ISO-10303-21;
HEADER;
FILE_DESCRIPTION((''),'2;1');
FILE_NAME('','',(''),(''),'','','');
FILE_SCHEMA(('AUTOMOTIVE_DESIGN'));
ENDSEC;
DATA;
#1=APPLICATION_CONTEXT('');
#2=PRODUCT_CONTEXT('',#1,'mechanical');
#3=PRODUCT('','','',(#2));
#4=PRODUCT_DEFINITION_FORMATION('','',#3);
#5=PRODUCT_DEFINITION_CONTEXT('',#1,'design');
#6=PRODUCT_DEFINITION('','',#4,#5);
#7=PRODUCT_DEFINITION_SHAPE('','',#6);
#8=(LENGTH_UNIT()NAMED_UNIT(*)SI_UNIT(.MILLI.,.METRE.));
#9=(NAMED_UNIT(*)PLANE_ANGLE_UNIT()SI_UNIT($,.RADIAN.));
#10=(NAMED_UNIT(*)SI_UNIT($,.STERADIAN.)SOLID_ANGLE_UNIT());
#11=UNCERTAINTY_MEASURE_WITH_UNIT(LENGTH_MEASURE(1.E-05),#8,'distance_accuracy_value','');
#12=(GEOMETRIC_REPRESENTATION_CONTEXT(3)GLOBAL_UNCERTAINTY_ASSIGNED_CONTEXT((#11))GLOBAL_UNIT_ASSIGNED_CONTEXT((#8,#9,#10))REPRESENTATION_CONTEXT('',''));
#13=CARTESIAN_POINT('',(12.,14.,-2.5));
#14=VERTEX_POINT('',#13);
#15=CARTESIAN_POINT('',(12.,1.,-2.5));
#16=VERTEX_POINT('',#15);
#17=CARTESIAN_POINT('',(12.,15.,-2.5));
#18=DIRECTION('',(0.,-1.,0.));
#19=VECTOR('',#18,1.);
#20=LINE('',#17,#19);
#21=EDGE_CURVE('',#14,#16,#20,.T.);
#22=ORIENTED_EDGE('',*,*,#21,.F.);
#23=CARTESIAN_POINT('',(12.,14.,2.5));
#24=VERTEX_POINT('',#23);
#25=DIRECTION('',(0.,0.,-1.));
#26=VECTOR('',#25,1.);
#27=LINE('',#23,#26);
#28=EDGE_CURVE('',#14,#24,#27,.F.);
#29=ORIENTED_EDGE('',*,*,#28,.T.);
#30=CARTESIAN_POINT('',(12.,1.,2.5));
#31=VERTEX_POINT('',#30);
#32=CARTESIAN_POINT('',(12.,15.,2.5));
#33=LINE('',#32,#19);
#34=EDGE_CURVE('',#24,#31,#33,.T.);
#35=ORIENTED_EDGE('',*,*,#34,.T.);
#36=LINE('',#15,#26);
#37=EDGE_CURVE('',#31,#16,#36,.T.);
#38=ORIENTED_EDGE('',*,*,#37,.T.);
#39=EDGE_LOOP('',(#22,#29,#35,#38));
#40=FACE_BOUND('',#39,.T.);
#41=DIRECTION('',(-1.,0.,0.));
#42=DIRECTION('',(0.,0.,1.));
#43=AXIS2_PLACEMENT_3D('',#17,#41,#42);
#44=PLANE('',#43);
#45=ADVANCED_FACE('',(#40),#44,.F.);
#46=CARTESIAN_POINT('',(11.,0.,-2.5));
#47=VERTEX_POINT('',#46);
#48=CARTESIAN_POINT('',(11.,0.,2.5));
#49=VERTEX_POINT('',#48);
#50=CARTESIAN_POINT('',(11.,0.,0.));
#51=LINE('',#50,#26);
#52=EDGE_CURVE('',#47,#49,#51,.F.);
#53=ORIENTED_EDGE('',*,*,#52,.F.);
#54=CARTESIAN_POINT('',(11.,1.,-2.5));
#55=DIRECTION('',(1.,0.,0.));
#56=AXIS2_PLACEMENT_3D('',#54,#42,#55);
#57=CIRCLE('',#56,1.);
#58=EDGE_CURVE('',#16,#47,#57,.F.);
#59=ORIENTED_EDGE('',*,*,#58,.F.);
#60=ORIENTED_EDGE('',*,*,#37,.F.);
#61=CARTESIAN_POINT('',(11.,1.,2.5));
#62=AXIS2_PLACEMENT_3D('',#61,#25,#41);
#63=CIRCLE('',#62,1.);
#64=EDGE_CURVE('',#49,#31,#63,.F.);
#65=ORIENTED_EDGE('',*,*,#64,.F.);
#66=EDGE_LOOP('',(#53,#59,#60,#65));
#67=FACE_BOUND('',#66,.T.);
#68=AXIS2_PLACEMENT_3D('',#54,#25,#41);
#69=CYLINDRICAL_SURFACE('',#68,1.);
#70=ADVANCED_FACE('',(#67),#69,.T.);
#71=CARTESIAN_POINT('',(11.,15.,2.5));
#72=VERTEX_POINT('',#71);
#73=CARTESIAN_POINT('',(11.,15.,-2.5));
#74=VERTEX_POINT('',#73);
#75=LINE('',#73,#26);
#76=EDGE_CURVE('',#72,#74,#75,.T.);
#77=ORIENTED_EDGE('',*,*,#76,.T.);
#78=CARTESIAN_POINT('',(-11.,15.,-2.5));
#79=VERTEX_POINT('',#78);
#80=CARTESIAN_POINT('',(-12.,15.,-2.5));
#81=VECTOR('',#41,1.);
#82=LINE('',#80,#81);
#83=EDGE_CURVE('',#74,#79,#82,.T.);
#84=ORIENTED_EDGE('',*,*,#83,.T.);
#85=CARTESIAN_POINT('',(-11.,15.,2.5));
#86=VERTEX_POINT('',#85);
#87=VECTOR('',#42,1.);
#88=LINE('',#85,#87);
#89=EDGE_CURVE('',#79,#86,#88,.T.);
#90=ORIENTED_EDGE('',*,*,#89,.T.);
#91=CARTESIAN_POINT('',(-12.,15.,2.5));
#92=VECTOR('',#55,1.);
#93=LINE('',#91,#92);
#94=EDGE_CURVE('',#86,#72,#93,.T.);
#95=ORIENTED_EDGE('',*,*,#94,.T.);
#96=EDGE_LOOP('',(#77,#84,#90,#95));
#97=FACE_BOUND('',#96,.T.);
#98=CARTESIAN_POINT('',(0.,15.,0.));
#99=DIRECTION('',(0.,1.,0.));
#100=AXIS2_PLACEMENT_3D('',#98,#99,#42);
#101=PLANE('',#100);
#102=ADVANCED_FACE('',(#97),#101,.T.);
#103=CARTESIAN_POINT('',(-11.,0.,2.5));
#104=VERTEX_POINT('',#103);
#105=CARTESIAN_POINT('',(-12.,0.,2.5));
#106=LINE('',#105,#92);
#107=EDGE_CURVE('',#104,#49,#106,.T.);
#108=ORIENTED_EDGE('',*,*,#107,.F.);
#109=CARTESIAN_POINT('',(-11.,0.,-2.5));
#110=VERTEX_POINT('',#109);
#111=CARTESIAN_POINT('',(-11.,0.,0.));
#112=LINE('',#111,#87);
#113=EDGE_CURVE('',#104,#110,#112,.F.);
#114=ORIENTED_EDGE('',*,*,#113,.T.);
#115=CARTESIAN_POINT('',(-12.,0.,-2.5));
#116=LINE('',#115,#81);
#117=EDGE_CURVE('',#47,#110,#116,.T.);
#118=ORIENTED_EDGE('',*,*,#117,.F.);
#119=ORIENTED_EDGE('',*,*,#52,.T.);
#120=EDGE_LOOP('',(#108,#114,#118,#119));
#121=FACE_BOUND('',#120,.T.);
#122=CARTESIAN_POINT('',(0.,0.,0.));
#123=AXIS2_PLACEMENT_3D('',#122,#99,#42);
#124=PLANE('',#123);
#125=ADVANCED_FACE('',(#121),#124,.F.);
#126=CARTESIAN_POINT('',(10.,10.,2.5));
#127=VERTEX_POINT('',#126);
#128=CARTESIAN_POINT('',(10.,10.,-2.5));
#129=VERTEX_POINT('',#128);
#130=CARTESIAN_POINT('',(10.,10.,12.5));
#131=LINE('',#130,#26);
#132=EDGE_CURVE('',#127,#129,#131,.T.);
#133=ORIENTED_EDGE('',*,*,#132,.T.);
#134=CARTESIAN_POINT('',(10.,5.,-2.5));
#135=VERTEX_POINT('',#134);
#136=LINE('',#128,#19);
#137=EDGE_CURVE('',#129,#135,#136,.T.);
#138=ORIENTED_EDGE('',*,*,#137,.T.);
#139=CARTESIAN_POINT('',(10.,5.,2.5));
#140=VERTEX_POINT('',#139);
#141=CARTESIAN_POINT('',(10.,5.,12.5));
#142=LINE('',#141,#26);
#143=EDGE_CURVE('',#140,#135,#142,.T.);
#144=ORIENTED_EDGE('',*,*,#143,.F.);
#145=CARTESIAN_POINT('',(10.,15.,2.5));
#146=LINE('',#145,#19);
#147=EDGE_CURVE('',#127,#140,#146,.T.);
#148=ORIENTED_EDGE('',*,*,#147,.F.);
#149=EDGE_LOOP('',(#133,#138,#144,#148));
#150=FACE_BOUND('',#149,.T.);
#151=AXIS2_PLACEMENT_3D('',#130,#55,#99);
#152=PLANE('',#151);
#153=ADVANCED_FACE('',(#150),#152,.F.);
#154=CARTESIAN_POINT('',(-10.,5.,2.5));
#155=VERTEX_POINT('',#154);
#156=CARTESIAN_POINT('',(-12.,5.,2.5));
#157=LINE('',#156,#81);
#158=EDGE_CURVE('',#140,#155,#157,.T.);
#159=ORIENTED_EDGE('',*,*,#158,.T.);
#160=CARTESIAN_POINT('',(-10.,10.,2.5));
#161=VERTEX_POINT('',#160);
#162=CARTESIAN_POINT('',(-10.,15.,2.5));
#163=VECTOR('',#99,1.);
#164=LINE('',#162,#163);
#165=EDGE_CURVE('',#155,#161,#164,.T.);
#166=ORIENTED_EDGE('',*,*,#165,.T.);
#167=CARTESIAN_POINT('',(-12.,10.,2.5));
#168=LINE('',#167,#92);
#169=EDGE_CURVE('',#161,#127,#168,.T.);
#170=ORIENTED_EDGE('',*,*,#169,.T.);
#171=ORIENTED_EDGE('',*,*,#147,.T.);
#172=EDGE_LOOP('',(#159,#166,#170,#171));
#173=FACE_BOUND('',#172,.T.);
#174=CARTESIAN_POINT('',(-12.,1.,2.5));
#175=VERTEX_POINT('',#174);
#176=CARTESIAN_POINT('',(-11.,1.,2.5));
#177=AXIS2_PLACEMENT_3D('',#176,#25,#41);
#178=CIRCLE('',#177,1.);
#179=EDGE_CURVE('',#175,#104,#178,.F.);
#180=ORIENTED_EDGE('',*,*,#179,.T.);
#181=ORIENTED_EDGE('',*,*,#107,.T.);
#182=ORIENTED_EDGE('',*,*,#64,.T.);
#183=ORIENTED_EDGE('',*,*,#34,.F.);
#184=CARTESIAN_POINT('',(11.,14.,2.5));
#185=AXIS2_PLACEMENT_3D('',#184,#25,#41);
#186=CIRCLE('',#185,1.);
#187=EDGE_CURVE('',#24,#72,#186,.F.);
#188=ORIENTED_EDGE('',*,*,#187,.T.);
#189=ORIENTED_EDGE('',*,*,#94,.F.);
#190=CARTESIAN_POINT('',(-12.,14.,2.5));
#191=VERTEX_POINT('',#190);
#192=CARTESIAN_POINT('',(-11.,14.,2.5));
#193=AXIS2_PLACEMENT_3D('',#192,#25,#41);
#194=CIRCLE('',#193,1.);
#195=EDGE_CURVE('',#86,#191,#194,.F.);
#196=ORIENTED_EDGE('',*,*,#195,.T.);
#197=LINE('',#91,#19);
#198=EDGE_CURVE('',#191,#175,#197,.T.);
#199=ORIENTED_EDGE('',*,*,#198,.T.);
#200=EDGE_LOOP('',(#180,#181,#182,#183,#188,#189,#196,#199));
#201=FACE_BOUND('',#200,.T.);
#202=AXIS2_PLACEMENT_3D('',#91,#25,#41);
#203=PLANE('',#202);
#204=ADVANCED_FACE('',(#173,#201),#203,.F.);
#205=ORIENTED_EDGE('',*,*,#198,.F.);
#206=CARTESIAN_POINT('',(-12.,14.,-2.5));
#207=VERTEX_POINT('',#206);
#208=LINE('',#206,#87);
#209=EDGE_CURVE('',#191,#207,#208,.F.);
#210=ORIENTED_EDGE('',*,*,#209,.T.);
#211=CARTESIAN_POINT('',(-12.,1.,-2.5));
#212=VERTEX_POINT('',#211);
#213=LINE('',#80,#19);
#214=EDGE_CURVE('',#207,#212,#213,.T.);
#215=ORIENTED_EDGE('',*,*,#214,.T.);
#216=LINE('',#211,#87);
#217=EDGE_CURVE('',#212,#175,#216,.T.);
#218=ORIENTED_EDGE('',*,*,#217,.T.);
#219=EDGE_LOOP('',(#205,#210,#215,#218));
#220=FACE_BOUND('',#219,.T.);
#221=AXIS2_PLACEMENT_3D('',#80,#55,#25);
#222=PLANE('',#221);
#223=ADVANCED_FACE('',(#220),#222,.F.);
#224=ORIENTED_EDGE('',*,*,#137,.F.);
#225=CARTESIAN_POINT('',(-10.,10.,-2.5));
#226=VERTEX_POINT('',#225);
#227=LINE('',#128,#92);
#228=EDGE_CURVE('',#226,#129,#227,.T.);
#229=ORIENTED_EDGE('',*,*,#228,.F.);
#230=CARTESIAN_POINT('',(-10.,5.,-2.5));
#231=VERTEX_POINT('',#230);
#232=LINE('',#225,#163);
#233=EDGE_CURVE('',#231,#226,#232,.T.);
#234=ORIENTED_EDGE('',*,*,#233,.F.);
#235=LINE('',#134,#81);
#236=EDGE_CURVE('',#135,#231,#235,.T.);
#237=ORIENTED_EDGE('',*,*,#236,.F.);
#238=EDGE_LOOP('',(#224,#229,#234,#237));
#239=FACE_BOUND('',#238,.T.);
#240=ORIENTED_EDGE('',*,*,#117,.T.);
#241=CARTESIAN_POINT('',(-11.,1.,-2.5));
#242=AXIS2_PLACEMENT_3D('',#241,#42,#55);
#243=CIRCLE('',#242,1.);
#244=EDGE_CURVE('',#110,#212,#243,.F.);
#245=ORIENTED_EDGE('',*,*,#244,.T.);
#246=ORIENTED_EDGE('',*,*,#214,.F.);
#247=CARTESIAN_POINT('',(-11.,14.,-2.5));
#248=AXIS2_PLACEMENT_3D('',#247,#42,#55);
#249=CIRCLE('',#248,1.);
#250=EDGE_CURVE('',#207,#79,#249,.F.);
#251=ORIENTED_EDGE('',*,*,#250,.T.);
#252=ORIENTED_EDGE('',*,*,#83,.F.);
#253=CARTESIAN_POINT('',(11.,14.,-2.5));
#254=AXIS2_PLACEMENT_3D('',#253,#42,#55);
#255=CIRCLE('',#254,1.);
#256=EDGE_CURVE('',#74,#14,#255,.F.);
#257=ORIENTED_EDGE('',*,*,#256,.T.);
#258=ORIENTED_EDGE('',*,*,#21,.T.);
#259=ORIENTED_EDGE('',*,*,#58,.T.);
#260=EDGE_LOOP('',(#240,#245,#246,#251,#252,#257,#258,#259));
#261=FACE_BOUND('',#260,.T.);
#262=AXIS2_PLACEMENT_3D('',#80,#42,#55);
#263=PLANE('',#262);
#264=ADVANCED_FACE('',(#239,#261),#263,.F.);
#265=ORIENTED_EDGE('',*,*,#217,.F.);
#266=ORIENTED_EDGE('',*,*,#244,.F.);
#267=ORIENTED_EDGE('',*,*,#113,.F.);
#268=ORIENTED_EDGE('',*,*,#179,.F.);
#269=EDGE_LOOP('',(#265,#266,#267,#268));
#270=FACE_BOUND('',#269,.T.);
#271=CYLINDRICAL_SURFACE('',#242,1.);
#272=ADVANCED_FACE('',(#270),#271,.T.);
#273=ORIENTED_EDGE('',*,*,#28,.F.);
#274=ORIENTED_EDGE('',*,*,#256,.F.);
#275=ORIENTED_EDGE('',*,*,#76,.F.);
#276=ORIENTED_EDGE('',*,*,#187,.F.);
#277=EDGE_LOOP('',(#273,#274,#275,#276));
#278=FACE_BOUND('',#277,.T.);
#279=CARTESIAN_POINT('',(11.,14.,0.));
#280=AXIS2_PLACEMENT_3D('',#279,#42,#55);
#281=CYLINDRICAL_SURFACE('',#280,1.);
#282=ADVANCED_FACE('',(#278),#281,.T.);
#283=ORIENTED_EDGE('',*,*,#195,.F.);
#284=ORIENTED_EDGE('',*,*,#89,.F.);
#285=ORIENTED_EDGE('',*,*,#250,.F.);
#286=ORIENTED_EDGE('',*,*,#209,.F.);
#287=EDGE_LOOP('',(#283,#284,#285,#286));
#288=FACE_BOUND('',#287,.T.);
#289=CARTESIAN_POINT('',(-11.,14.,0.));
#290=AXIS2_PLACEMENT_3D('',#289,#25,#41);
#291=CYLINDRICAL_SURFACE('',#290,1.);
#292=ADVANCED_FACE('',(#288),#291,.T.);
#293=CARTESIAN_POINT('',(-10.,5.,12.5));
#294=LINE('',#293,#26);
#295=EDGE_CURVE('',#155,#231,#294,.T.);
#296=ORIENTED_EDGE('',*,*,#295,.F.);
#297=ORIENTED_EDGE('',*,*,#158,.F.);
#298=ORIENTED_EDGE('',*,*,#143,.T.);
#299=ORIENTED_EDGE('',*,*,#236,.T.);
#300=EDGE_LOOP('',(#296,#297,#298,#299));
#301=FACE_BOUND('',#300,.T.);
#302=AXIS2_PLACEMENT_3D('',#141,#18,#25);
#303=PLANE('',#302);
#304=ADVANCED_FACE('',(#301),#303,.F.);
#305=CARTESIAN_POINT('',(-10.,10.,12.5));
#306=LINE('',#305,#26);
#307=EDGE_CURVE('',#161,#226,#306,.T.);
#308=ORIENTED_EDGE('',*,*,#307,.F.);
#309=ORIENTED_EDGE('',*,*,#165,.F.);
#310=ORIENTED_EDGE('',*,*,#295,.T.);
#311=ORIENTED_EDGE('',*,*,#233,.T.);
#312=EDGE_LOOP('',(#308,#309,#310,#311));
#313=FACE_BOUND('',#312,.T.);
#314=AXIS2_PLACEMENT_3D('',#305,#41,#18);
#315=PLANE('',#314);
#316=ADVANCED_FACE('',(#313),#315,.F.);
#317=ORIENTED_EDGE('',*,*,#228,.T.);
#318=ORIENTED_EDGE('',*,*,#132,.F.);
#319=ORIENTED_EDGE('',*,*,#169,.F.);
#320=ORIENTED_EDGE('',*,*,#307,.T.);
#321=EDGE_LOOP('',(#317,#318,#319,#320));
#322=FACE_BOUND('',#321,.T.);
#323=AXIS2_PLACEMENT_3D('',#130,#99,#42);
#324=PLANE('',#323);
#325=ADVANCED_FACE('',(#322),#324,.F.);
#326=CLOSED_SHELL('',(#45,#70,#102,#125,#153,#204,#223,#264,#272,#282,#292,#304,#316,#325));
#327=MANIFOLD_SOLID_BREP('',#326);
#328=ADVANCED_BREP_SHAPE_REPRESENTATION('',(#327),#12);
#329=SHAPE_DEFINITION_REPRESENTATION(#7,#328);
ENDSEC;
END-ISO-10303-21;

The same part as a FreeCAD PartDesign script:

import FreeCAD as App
import Part
import Sketcher
from FreeCAD import Vector


def edges_at(feature, points):
    """Names of the edges that pass closest to the given points."""
    edges = feature.Shape.Edges
    near = lambda p: min(range(len(edges)), key=lambda i: edges[i].distToShape(Part.Vertex(*p))[0])
    return sorted({f"Edge{near(p) + 1}" for p in points})

doc = App.newDocument("Part")
body = doc.addObject("PartDesign::Body", "Body")

# Sketch on XZ plane
sketch1 = body.newObject("Sketcher::SketchObject", "Sketch")
sketch1.AttachmentSupport = (doc.getObject("XZ_Plane"), [""])
sketch1.MapMode = "FlatFace"
sketch1.addGeometry([
    Part.LineSegment(Vector(-12, -2, 0), Vector(-12, 2, 0)),
    Part.LineSegment(Vector(-12, 2, 0), Vector(12, 2, 0)),
    Part.LineSegment(Vector(12, 2, 0), Vector(12, -2, 0)),
    Part.LineSegment(Vector(12, -2, 0), Vector(-12, -2, 0)),
], False)
sketch1.addConstraint([
    Sketcher.Constraint("Coincident", 0, 2, 1, 1),
    Sketcher.Constraint("Coincident", 1, 2, 2, 1),
    Sketcher.Constraint("Coincident", 2, 2, 3, 1),
    Sketcher.Constraint("Coincident", 3, 2, 0, 1),
    Sketcher.Constraint("Vertical", 0),
    Sketcher.Constraint("Horizontal", 1),
    Sketcher.Constraint("Vertical", 2),
    Sketcher.Constraint("Horizontal", 3),
    Sketcher.Constraint("Symmetric", 0, 2, 2, 2, -1, 1),
    Sketcher.Constraint("DistanceX", 1, 1, 1, 2, 24.0),
    Sketcher.Constraint("DistanceY", 0, 1, 0, 2, 5.0),
])
pad1 = body.newObject("PartDesign::Pad", "Pad")
pad1.Profile = sketch1
pad1.Length = 15
pad1.Reversed = True

# Sketch on XY plane
sketch2 = body.newObject("Sketcher::SketchObject", "Sketch001")
sketch2.AttachmentSupport = (doc.getObject("XY_Plane"), [""])
sketch2.MapMode = "FlatFace"
sketch2.AttachmentOffset = App.Placement(Vector(0, 0, -2.5), App.Rotation())
sketch2.addGeometry([
    Part.LineSegment(Vector(10, 10, 0), Vector(10, 5, 0)),
    Part.LineSegment(Vector(10, 5, 0), Vector(-10, 5, 0)),
    Part.LineSegment(Vector(-10, 5, 0), Vector(-10, 10, 0)),
    Part.LineSegment(Vector(-10, 10, 0), Vector(10, 10, 0)),
], False)
sketch2.addConstraint([
    Sketcher.Constraint("Coincident", 0, 2, 1, 1),
    Sketcher.Constraint("Coincident", 1, 2, 2, 1),
    Sketcher.Constraint("Coincident", 2, 2, 3, 1),
    Sketcher.Constraint("Coincident", 3, 2, 0, 1),
    Sketcher.Constraint("Vertical", 0),
    Sketcher.Constraint("Horizontal", 1),
    Sketcher.Constraint("Vertical", 2),
    Sketcher.Constraint("Horizontal", 3),
    Sketcher.Constraint("DistanceX", 1, 2, 1, 1, 20.0),
    Sketcher.Constraint("DistanceY", 0, 2, 0, 1, 5.0),
    Sketcher.Constraint("DistanceX", -1, 1, 0, 2, 10.0),
    Sketcher.Constraint("DistanceY", -1, 1, 0, 2, 5.0),
])
pocket1 = body.newObject("PartDesign::Pocket", "Pocket")
pocket1.Profile = sketch2
pocket1.Length = 15
pocket1.Reversed = True
doc.recompute()

fillet = body.newObject("PartDesign::Fillet", "Fillet")
fillet.Base = (pocket1, edges_at(pocket1, [
    (12, 15, 0),
    (-12, 15, 0),
    (12, 0, 0),
    (-12, 0, 0),
]))
fillet.Radius = 1

doc.recompute()
